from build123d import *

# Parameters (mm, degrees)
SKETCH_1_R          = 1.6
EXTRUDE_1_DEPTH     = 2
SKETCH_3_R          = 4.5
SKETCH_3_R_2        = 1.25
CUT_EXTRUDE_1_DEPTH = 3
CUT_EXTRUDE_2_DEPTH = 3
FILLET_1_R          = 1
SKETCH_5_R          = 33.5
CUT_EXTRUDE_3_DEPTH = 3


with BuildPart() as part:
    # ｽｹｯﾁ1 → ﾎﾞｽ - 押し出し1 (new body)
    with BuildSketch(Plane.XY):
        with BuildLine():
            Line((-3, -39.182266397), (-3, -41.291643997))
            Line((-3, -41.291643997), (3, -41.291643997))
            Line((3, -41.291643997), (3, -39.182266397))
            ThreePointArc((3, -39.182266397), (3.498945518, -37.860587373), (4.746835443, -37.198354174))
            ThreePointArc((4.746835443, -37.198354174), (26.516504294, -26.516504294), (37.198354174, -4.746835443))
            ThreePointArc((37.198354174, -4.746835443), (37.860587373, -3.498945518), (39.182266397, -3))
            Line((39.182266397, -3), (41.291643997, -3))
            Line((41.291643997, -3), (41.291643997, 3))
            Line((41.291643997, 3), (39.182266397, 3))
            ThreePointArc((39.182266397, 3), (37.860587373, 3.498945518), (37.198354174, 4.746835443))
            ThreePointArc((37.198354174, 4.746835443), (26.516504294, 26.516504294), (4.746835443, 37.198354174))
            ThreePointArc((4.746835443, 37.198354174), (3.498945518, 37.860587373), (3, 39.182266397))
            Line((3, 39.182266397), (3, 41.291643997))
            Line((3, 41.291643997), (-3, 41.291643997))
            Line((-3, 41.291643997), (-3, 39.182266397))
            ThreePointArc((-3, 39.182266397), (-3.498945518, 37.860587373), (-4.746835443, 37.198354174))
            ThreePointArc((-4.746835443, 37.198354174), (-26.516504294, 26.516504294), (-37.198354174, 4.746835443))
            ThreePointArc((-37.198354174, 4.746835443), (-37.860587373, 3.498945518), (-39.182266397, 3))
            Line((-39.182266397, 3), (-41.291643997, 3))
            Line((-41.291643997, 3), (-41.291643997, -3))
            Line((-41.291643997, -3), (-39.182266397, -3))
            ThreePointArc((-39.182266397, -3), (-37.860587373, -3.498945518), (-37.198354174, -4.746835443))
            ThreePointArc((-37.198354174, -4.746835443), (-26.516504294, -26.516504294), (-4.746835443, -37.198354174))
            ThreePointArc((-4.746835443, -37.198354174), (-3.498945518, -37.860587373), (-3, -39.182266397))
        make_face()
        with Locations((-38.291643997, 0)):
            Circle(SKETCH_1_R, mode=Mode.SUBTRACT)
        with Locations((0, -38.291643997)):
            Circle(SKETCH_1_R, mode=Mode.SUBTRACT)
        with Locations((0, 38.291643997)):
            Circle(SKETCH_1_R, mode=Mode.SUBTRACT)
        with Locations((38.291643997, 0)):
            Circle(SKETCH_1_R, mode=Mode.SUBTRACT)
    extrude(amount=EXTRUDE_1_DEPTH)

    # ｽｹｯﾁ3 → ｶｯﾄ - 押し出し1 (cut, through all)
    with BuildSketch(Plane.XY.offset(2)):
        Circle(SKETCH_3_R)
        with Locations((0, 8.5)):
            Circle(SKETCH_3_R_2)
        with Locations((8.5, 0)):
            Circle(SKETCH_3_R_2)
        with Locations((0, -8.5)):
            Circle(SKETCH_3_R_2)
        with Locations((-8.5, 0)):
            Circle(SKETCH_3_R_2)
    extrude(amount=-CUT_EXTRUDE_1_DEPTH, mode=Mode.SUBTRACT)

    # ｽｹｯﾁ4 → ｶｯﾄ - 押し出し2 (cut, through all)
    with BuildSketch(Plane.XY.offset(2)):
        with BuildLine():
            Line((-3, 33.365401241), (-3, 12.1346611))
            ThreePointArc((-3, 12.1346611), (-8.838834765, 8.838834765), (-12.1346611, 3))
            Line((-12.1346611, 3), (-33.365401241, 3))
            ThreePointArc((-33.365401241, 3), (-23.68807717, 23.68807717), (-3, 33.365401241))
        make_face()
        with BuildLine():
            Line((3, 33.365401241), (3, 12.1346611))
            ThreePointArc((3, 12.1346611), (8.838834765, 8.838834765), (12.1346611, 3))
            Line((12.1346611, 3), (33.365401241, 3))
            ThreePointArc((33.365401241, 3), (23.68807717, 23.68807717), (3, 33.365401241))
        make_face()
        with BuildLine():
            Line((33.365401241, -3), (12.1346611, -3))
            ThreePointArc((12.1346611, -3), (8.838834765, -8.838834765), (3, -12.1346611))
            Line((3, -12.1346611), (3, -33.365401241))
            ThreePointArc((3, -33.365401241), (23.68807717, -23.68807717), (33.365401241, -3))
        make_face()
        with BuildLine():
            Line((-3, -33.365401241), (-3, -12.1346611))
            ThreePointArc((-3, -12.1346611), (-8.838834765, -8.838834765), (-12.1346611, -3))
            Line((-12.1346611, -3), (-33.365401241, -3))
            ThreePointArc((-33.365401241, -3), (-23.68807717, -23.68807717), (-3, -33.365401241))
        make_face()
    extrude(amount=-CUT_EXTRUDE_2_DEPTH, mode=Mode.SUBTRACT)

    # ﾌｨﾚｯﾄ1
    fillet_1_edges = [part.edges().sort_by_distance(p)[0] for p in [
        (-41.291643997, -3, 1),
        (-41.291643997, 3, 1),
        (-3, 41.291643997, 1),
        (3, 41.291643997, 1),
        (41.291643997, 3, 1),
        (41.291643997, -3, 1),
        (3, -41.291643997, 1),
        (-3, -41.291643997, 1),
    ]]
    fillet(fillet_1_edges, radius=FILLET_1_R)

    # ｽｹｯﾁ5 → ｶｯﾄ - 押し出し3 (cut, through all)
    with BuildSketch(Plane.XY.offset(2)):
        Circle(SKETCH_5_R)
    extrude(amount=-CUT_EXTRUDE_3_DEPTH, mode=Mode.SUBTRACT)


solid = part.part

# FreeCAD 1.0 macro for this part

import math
import FreeCAD as App
import Part
import Sketcher
from FreeCAD import Vector
Q = App.Units.Quantity


def edges_at(feature, points):
    """Names of the edges that pass closest to the given points."""
    edges = feature.Shape.Edges
    near = lambda p: min(range(len(edges)), key=lambda i: edges[i].distToShape(Part.Vertex(*p))[0])
    return sorted({f"Edge{near(p) + 1}" for p in points})

doc = App.newDocument("Part")
body = doc.addObject("PartDesign::Body", "Body")

sketch1 = body.newObject("Sketcher::SketchObject", "Sketch")
sketch1.AttachmentSupport = (doc.getObject("XY_Plane"), [""])
sketch1.MapMode = "FlatFace"
sketch1.addGeometry(Part.LineSegment(Vector(-3, -39.2, 0), Vector(-3, -41.3, 0)), False)
sketch1.addGeometry(Part.LineSegment(Vector(-3, -41.3, 0), Vector(3, -41.3, 0)), False)
sketch1.addGeometry(Part.LineSegment(Vector(3, -41.3, 0), Vector(3, -39.2, 0)), False)
sketch1.addGeometry(Part.ArcOfCircle(Part.Circle(Vector(5, -39.2, 0), Vector(0, 0, 1), 2), math.radians(97), math.radians(180)), False)
sketch1.addGeometry(Part.ArcOfCircle(Part.Circle(Vector(0, 0, 0), Vector(0, 0, 1), 37.5), math.radians(-83), math.radians(-7)), False)
sketch1.addGeometry(Part.ArcOfCircle(Part.Circle(Vector(39.2, -5, 0), Vector(0, 0, 1), 2), math.radians(90), math.radians(173)), False)
sketch1.addGeometry(Part.LineSegment(Vector(39.2, -3, 0), Vector(41.3, -3, 0)), False)
sketch1.addGeometry(Part.LineSegment(Vector(41.3, -3, 0), Vector(41.3, 3, 0)), False)
sketch1.addGeometry(Part.LineSegment(Vector(41.3, 3, 0), Vector(39.2, 3, 0)), False)
sketch1.addGeometry(Part.ArcOfCircle(Part.Circle(Vector(39.2, 5, 0), Vector(0, 0, 1), 2), math.radians(-173), math.radians(-90)), False)
sketch1.addGeometry(Part.ArcOfCircle(Part.Circle(Vector(0, 0, 0), Vector(0, 0, 1), 37.5), math.radians(7), math.radians(83)), False)
sketch1.addGeometry(Part.ArcOfCircle(Part.Circle(Vector(5, 39.2, 0), Vector(0, 0, 1), 2), math.radians(180), math.radians(263)), False)
sketch1.addGeometry(Part.LineSegment(Vector(3, 39.2, 0), Vector(3, 41.3, 0)), False)
sketch1.addGeometry(Part.LineSegment(Vector(3, 41.3, 0), Vector(-3, 41.3, 0)), False)
sketch1.addGeometry(Part.LineSegment(Vector(-3, 41.3, 0), Vector(-3, 39.2, 0)), False)
sketch1.addGeometry(Part.ArcOfCircle(Part.Circle(Vector(-5, 39.2, 0), Vector(0, 0, 1), 2), math.radians(-83), math.radians(0)), False)
sketch1.addGeometry(Part.ArcOfCircle(Part.Circle(Vector(0, 0, 0), Vector(0, 0, 1), 37.5), math.radians(97), math.radians(173)), False)
sketch1.addGeometry(Part.ArcOfCircle(Part.Circle(Vector(-39.2, 5, 0), Vector(0, 0, 1), 2), math.radians(-90), math.radians(-7)), False)
sketch1.addGeometry(Part.LineSegment(Vector(-39.2, 3, 0), Vector(-41.3, 3, 0)), False)
sketch1.addGeometry(Part.LineSegment(Vector(-41.3, 3, 0), Vector(-41.3, -3, 0)), False)
sketch1.addGeometry(Part.LineSegment(Vector(-41.3, -3, 0), Vector(-39.2, -3, 0)), False)
sketch1.addGeometry(Part.ArcOfCircle(Part.Circle(Vector(-39.2, -5, 0), Vector(0, 0, 1), 2), math.radians(7), math.radians(90)), False)
sketch1.addGeometry(Part.ArcOfCircle(Part.Circle(Vector(0, 0, 0), Vector(0, 0, 1), 37.5), math.radians(-173), math.radians(-97)), False)
sketch1.addGeometry(Part.ArcOfCircle(Part.Circle(Vector(-5, -39.2, 0), Vector(0, 0, 1), 2), math.radians(0), math.radians(83)), False)
sketch1.addGeometry(Part.Circle(Vector(0, -38.3, 0), Vector(0, 0, 1), 1.6), False)
sketch1.addGeometry(Part.Circle(Vector(-38.3, 0, 0), Vector(0, 0, 1), 1.6), False)
sketch1.addGeometry(Part.Circle(Vector(38.3, 0, 0), Vector(0, 0, 1), 1.6), False)
sketch1.addGeometry(Part.Circle(Vector(0, 38.3, 0), Vector(0, 0, 1), 1.6), False)
sketch1.addConstraint(Sketcher.Constraint("Coincident", 0, 2, 1, 1))
sketch1.addConstraint(Sketcher.Constraint("Coincident", 1, 2, 2, 1))
sketch1.addConstraint(Sketcher.Constraint("Tangent", 2, 2, 3, 2))
sketch1.addConstraint(Sketcher.Constraint("Tangent", 3, 1, 4, 1))
sketch1.addConstraint(Sketcher.Constraint("Tangent", 4, 2, 5, 2))
sketch1.addConstraint(Sketcher.Constraint("Tangent", 5, 1, 6, 1))
sketch1.addConstraint(Sketcher.Constraint("Coincident", 6, 2, 7, 1))
sketch1.addConstraint(Sketcher.Constraint("Coincident", 7, 2, 8, 1))
sketch1.addConstraint(Sketcher.Constraint("Tangent", 8, 2, 9, 2))
sketch1.addConstraint(Sketcher.Constraint("Tangent", 9, 1, 10, 1))
sketch1.addConstraint(Sketcher.Constraint("Tangent", 10, 2, 11, 2))
sketch1.addConstraint(Sketcher.Constraint("Tangent", 11, 1, 12, 1))
sketch1.addConstraint(Sketcher.Constraint("Coincident", 12, 2, 13, 1))
sketch1.addConstraint(Sketcher.Constraint("Coincident", 13, 2, 14, 1))
sketch1.addConstraint(Sketcher.Constraint("Tangent", 14, 2, 15, 2))
sketch1.addConstraint(Sketcher.Constraint("Tangent", 15, 1, 16, 1))
sketch1.addConstraint(Sketcher.Constraint("Tangent", 16, 2, 17, 2))
sketch1.addConstraint(Sketcher.Constraint("Tangent", 17, 1, 18, 1))
sketch1.addConstraint(Sketcher.Constraint("Coincident", 18, 2, 19, 1))
sketch1.addConstraint(Sketcher.Constraint("Coincident", 19, 2, 20, 1))
sketch1.addConstraint(Sketcher.Constraint("Tangent", 20, 2, 21, 2))
sketch1.addConstraint(Sketcher.Constraint("Tangent", 21, 1, 22, 1))
sketch1.addConstraint(Sketcher.Constraint("Tangent", 22, 2, 23, 2))
sketch1.addConstraint(Sketcher.Constraint("Tangent", 23, 1, 0, 1))
sketch1.addConstraint(Sketcher.Constraint("Vertical", 0))
sketch1.addConstraint(Sketcher.Constraint("Horizontal", 1))
sketch1.addConstraint(Sketcher.Constraint("Vertical", 2))
sketch1.addConstraint(Sketcher.Constraint("Horizontal", 6))
sketch1.addConstraint(Sketcher.Constraint("Vertical", 7))
sketch1.addConstraint(Sketcher.Constraint("Horizontal", 8))
sketch1.addConstraint(Sketcher.Constraint("Vertical", 12))
sketch1.addConstraint(Sketcher.Constraint("Horizontal", 13))
sketch1.addConstraint(Sketcher.Constraint("Vertical", 14))
sketch1.addConstraint(Sketcher.Constraint("Horizontal", 18))
sketch1.addConstraint(Sketcher.Constraint("Vertical", 19))
sketch1.addConstraint(Sketcher.Constraint("Horizontal", 20))
sketch1.addConstraint(Sketcher.Constraint("Coincident", 4, 3, -1, 1))
sketch1.addConstraint(Sketcher.Constraint("Coincident", 10, 3, -1, 1))
sketch1.addConstraint(Sketcher.Constraint("Coincident", 16, 3, -1, 1))
sketch1.addConstraint(Sketcher.Constraint("Coincident", 22, 3, -1, 1))
sketch1.addConstraint(Sketcher.Constraint("Equal", 3, 5))
sketch1.addConstraint(Sketcher.Constraint("Equal", 5, 9))
sketch1.addConstraint(Sketcher.Constraint("Equal", 4, 10))
sketch1.addConstraint(Sketcher.Constraint("Equal", 9, 11))
sketch1.addConstraint(Sketcher.Constraint("Equal", 11, 15))
sketch1.addConstraint(Sketcher.Constraint("Equal", 10, 16))
sketch1.addConstraint(Sketcher.Constraint("Equal", 15, 17))
sketch1.addConstraint(Sketcher.Constraint("Equal", 17, 21))
sketch1.addConstraint(Sketcher.Constraint("Equal", 16, 22))
sketch1.addConstraint(Sketcher.Constraint("Equal", 21, 23))
sketch1.addConstraint(Sketcher.Constraint("Equal", 24, 25))
sketch1.addConstraint(Sketcher.Constraint("Equal", 25, 26))
sketch1.addConstraint(Sketcher.Constraint("Equal", 26, 27))
sketch1.addConstraint(Sketcher.Constraint("Symmetric", 25, 3, 26, 3, -1, 1))
sketch1.addConstraint(Sketcher.Constraint("Symmetric", 24, 3, 27, 3, -1, 1))
sketch1.addConstraint(Sketcher.Constraint("Symmetric", 0, 2, 12, 2, -1, 1))
sketch1.addConstraint(Sketcher.Constraint("Symmetric", 6, 2, 18, 2, -1, 1))
sketch1.addConstraint(Sketcher.Constraint("PointOnObject", 24, 3, -2))
sketch1.addConstraint(Sketcher.Constraint("PointOnObject", 25, 3, -1))
sketch1.addConstraint(Sketcher.Constraint("Horizontal", 11, 3, 15, 3))
sketch1.addConstraint(Sketcher.Constraint("Horizontal", 9, 3, 17, 3))
sketch1.addConstraint(Sketcher.Constraint("Horizontal", 5, 3, 21, 3))
sketch1.addConstraint(Sketcher.Constraint("Horizontal", 3, 3, 23, 3))
sketch1.addConstraint(Sketcher.Constraint("Equal", 20, 0))
sketch1.addConstraint(Sketcher.Constraint("Equal", 13, 7))
sketch1.addConstraint(Sketcher.Constraint("Radius", 3, Q("2 mm")))
sketch1.addConstraint(Sketcher.Constraint("Diameter", 24, Q("3.2 mm")))
sketch1.addConstraint(Sketcher.Constraint("Radius", 4, Q("37.5 mm")))
sketch1.addConstraint(Sketcher.Constraint("DistanceX", 1, 1, 1, 2, Q("6 mm")))
sketch1.addConstraint(Sketcher.Constraint("DistanceY", 0, 2, 24, 3, Q("3 mm")))
sketch1.addConstraint(Sketcher.Constraint("DistanceX", 26, 3, 6, 2, Q("3 mm")))
sketch1.addConstraint(Sketcher.Constraint("DistanceX", 6, 1, 6, 2, Q("2.109378 mm")))
pad1 = body.newObject("PartDesign::Pad", "Pad")
pad1.Profile = sketch1
pad1.Length = 2

sketch2 = body.newObject("Sketcher::SketchObject", "Sketch001")
sketch2.AttachmentSupport = (doc.getObject("XY_Plane"), [""])
sketch2.MapMode = "FlatFace"
sketch2.AttachmentOffset = App.Placement(Vector(0, 0, 2), App.Rotation())
sketch2.addGeometry(Part.Circle(Vector(0, 0, 0), Vector(0, 0, 1), 4.5), False)
sketch2.addGeometry(Part.Circle(Vector(0, 8.5, 0), Vector(0, 0, 1), 1.2), False)
sketch2.addGeometry(Part.Circle(Vector(8.5, 0, 0), Vector(0, 0, 1), 1.2), False)
sketch2.addGeometry(Part.Circle(Vector(0, -8.5, 0), Vector(0, 0, 1), 1.2), False)
sketch2.addGeometry(Part.Circle(Vector(-8.5, 0, 0), Vector(0, 0, 1), 1.2), False)
sketch2.addConstraint(Sketcher.Constraint("Coincident", 0, 3, -1, 1))
sketch2.addConstraint(Sketcher.Constraint("Equal", 1, 2))
sketch2.addConstraint(Sketcher.Constraint("Equal", 2, 3))
sketch2.addConstraint(Sketcher.Constraint("Equal", 3, 4))
sketch2.addConstraint(Sketcher.Constraint("Symmetric", 1, 3, 3, 3, -1, 1))
sketch2.addConstraint(Sketcher.Constraint("Symmetric", 2, 3, 4, 3, -1, 1))
sketch2.addConstraint(Sketcher.Constraint("PointOnObject", 1, 3, -2))
sketch2.addConstraint(Sketcher.Constraint("PointOnObject", 2, 3, -1))
sketch2.addConstraint(Sketcher.Constraint("Diameter", 0, Q("9 mm")))
sketch2.addConstraint(Sketcher.Constraint("Diameter", 1, Q("2.5 mm")))
sketch2.addConstraint(Sketcher.Constraint("DistanceY", 3, 3, 1, 3, Q("17 mm")))
sketch2.addConstraint(Sketcher.Constraint("DistanceX", 4, 3, 2, 3, Q("17 mm")))
pocket1 = body.newObject("PartDesign::Pocket", "Pocket")
pocket1.Profile = sketch2
pocket1.Type = "ThroughAll"

sketch3 = body.newObject("Sketcher::SketchObject", "Sketch002")
sketch3.AttachmentSupport = (doc.getObject("XY_Plane"), [""])
sketch3.MapMode = "FlatFace"
sketch3.AttachmentOffset = App.Placement(Vector(0, 0, 2), App.Rotation())
sketch3.addGeometry(Part.LineSegment(Vector(-3, 12, 0), Vector(-3, 33, 0)), False)
sketch3.addGeometry(Part.ArcOfCircle(Part.Circle(Vector(0, 0, 0), Vector(0, 0, 1), 33), math.radians(95), math.radians(175)), False)
sketch3.addGeometry(Part.LineSegment(Vector(-33, 3, 0), Vector(-12, 3, 0)), False)
sketch3.addGeometry(Part.ArcOfCircle(Part.Circle(Vector(0, 0, 0), Vector(0, 0, 1), 13), math.radians(104), math.radians(166)), False)
sketch3.addGeometry(Part.LineSegment(Vector(3, 33, 0), Vector(3, 12, 0)), False)
sketch3.addGeometry(Part.ArcOfCircle(Part.Circle(Vector(0, 0, 0), Vector(0, 0, 1), 13), math.radians(14), math.radians(76)), False)
sketch3.addGeometry(Part.LineSegment(Vector(12, 3, 0), Vector(33, 3, 0)), False)
sketch3.addGeometry(Part.ArcOfCircle(Part.Circle(Vector(0, 0, 0), Vector(0, 0, 1), 33), math.radians(5), math.radians(85)), False)
sketch3.addGeometry(Part.LineSegment(Vector(33, -3, 0), Vector(12, -3, 0)), False)
sketch3.addGeometry(Part.ArcOfCircle(Part.Circle(Vector(0, 0, 0), Vector(0, 0, 1), 13), math.radians(-76), math.radians(-14)), False)
sketch3.addGeometry(Part.LineSegment(Vector(3, -12, 0), Vector(3, -33, 0)), False)
sketch3.addGeometry(Part.ArcOfCircle(Part.Circle(Vector(0, 0, 0), Vector(0, 0, 1), 33), math.radians(-85), math.radians(-5)), False)
sketch3.addGeometry(Part.LineSegment(Vector(-3, -33, 0), Vector(-3, -12, 0)), False)
sketch3.addGeometry(Part.ArcOfCircle(Part.Circle(Vector(0, 0, 0), Vector(0, 0, 1), 13), math.radians(-166), math.radians(-104)), False)
sketch3.addGeometry(Part.LineSegment(Vector(-12, -3, 0), Vector(-33, -3, 0)), False)
sketch3.addGeometry(Part.ArcOfCircle(Part.Circle(Vector(0, 0, 0), Vector(0, 0, 1), 33), math.radians(-175), math.radians(-95)), False)
sketch3.addConstraint(Sketcher.Constraint("Coincident", 0, 2, 1, 1))
sketch3.addConstraint(Sketcher.Constraint("Coincident", 1, 2, 2, 1))
sketch3.addConstraint(Sketcher.Constraint("Coincident", 2, 2, 3, 2))
sketch3.addConstraint(Sketcher.Constraint("Coincident", 3, 1, 0, 1))
sketch3.addConstraint(Sketcher.Constraint("Coincident", 4, 2, 5, 2))
sketch3.addConstraint(Sketcher.Constraint("Coincident", 5, 1, 6, 1))
sketch3.addConstraint(Sketcher.Constraint("Coincident", 6, 2, 7, 1))
sketch3.addConstraint(Sketcher.Constraint("Coincident", 7, 2, 4, 1))
sketch3.addConstraint(Sketcher.Constraint("Coincident", 8, 2, 9, 2))
sketch3.addConstraint(Sketcher.Constraint("Coincident", 9, 1, 10, 1))
sketch3.addConstraint(Sketcher.Constraint("Coincident", 10, 2, 11, 1))
sketch3.addConstraint(Sketcher.Constraint("Coincident", 11, 2, 8, 1))
sketch3.addConstraint(Sketcher.Constraint("Coincident", 12, 2, 13, 2))
sketch3.addConstraint(Sketcher.Constraint("Coincident", 13, 1, 14, 1))
sketch3.addConstraint(Sketcher.Constraint("Coincident", 14, 2, 15, 1))
sketch3.addConstraint(Sketcher.Constraint("Coincident", 15, 2, 12, 1))
sketch3.addConstraint(Sketcher.Constraint("Vertical", 0))
sketch3.addConstraint(Sketcher.Constraint("Horizontal", 2))
sketch3.addConstraint(Sketcher.Constraint("Vertical", 4))
sketch3.addConstraint(Sketcher.Constraint("Horizontal", 6))
sketch3.addConstraint(Sketcher.Constraint("Horizontal", 8))
sketch3.addConstraint(Sketcher.Constraint("Vertical", 10))
sketch3.addConstraint(Sketcher.Constraint("Vertical", 12))
sketch3.addConstraint(Sketcher.Constraint("Horizontal", 14))
sketch3.addConstraint(Sketcher.Constraint("Coincident", 1, 3, -1, 1))
sketch3.addConstraint(Sketcher.Constraint("Coincident", 3, 3, -1, 1))
sketch3.addConstraint(Sketcher.Constraint("Coincident", 5, 3, -1, 1))
sketch3.addConstraint(Sketcher.Constraint("Coincident", 7, 3, -1, 1))
sketch3.addConstraint(Sketcher.Constraint("Coincident", 9, 3, -1, 1))
sketch3.addConstraint(Sketcher.Constraint("Coincident", 11, 3, -1, 1))
sketch3.addConstraint(Sketcher.Constraint("Coincident", 13, 3, -1, 1))
sketch3.addConstraint(Sketcher.Constraint("Coincident", 15, 3, -1, 1))
sketch3.addConstraint(Sketcher.Constraint("Equal", 3, 5))
sketch3.addConstraint(Sketcher.Constraint("Equal", 1, 7))
sketch3.addConstraint(Sketcher.Constraint("Equal", 5, 9))
sketch3.addConstraint(Sketcher.Constraint("Equal", 7, 11))
sketch3.addConstraint(Sketcher.Constraint("Equal", 9, 13))
sketch3.addConstraint(Sketcher.Constraint("Equal", 11, 15))
sketch3.addConstraint(Sketcher.Constraint("Horizontal", 3, 1, 4, 2))
sketch3.addConstraint(Sketcher.Constraint("Horizontal", 2, 2, 5, 1))
sketch3.addConstraint(Sketcher.Constraint("Horizontal", 9, 1, 12, 2))
sketch3.addConstraint(Sketcher.Constraint("Horizontal", 11, 2, 13, 1))
sketch3.addConstraint(Sketcher.Constraint("Vertical", 5, 1, 8, 2))
sketch3.addConstraint(Sketcher.Constraint("Vertical", 7, 2, 9, 1))
sketch3.addConstraint(Sketcher.Constraint("Equal", 14, 0))
sketch3.addConstraint(Sketcher.Constraint("Radius", 1, Q("33.5 mm")))
sketch3.addConstraint(Sketcher.Constraint("Radius", 3, Q("12.5 mm")))
sketch3.addConstraint(Sketcher.Constraint("DistanceX", 0, 2, -1, 1, Q("3 mm")))
pocket2 = body.newObject("PartDesign::Pocket", "Pocket001")
pocket2.Profile = sketch3
pocket2.Type = "ThroughAll"
doc.recompute()

fillet = body.newObject("PartDesign::Fillet", "Fillet")
fillet.Base = (pocket2, edges_at(pocket2, [
    (-41.292, -3, 1),
    (-41.292, 3, 1),
    (-3, 41.292, 1),
    (3, 41.292, 1),
    (41.292, 3, 1),
    (41.292, -3, 1),
    (3, -41.292, 1),
    (-3, -41.292, 1),
]))
fillet.Radius = 1

sketch4 = body.newObject("Sketcher::SketchObject", "Sketch003")
sketch4.AttachmentSupport = (doc.getObject("XY_Plane"), [""])
sketch4.MapMode = "FlatFace"
sketch4.AttachmentOffset = App.Placement(Vector(0, 0, 2), App.Rotation())
sketch4.addGeometry(Part.Circle(Vector(0, 0, 0), Vector(0, 0, 1), 34), False)
sketch4.addConstraint(Sketcher.Constraint("Coincident", 0, 3, -1, 1))
sketch4.addConstraint(Sketcher.Constraint("Diameter", 0, Q("67 mm")))
pocket3 = body.newObject("PartDesign::Pocket", "Pocket002")
pocket3.Profile = sketch4
pocket3.Type = "ThroughAll"

doc.recompute()
